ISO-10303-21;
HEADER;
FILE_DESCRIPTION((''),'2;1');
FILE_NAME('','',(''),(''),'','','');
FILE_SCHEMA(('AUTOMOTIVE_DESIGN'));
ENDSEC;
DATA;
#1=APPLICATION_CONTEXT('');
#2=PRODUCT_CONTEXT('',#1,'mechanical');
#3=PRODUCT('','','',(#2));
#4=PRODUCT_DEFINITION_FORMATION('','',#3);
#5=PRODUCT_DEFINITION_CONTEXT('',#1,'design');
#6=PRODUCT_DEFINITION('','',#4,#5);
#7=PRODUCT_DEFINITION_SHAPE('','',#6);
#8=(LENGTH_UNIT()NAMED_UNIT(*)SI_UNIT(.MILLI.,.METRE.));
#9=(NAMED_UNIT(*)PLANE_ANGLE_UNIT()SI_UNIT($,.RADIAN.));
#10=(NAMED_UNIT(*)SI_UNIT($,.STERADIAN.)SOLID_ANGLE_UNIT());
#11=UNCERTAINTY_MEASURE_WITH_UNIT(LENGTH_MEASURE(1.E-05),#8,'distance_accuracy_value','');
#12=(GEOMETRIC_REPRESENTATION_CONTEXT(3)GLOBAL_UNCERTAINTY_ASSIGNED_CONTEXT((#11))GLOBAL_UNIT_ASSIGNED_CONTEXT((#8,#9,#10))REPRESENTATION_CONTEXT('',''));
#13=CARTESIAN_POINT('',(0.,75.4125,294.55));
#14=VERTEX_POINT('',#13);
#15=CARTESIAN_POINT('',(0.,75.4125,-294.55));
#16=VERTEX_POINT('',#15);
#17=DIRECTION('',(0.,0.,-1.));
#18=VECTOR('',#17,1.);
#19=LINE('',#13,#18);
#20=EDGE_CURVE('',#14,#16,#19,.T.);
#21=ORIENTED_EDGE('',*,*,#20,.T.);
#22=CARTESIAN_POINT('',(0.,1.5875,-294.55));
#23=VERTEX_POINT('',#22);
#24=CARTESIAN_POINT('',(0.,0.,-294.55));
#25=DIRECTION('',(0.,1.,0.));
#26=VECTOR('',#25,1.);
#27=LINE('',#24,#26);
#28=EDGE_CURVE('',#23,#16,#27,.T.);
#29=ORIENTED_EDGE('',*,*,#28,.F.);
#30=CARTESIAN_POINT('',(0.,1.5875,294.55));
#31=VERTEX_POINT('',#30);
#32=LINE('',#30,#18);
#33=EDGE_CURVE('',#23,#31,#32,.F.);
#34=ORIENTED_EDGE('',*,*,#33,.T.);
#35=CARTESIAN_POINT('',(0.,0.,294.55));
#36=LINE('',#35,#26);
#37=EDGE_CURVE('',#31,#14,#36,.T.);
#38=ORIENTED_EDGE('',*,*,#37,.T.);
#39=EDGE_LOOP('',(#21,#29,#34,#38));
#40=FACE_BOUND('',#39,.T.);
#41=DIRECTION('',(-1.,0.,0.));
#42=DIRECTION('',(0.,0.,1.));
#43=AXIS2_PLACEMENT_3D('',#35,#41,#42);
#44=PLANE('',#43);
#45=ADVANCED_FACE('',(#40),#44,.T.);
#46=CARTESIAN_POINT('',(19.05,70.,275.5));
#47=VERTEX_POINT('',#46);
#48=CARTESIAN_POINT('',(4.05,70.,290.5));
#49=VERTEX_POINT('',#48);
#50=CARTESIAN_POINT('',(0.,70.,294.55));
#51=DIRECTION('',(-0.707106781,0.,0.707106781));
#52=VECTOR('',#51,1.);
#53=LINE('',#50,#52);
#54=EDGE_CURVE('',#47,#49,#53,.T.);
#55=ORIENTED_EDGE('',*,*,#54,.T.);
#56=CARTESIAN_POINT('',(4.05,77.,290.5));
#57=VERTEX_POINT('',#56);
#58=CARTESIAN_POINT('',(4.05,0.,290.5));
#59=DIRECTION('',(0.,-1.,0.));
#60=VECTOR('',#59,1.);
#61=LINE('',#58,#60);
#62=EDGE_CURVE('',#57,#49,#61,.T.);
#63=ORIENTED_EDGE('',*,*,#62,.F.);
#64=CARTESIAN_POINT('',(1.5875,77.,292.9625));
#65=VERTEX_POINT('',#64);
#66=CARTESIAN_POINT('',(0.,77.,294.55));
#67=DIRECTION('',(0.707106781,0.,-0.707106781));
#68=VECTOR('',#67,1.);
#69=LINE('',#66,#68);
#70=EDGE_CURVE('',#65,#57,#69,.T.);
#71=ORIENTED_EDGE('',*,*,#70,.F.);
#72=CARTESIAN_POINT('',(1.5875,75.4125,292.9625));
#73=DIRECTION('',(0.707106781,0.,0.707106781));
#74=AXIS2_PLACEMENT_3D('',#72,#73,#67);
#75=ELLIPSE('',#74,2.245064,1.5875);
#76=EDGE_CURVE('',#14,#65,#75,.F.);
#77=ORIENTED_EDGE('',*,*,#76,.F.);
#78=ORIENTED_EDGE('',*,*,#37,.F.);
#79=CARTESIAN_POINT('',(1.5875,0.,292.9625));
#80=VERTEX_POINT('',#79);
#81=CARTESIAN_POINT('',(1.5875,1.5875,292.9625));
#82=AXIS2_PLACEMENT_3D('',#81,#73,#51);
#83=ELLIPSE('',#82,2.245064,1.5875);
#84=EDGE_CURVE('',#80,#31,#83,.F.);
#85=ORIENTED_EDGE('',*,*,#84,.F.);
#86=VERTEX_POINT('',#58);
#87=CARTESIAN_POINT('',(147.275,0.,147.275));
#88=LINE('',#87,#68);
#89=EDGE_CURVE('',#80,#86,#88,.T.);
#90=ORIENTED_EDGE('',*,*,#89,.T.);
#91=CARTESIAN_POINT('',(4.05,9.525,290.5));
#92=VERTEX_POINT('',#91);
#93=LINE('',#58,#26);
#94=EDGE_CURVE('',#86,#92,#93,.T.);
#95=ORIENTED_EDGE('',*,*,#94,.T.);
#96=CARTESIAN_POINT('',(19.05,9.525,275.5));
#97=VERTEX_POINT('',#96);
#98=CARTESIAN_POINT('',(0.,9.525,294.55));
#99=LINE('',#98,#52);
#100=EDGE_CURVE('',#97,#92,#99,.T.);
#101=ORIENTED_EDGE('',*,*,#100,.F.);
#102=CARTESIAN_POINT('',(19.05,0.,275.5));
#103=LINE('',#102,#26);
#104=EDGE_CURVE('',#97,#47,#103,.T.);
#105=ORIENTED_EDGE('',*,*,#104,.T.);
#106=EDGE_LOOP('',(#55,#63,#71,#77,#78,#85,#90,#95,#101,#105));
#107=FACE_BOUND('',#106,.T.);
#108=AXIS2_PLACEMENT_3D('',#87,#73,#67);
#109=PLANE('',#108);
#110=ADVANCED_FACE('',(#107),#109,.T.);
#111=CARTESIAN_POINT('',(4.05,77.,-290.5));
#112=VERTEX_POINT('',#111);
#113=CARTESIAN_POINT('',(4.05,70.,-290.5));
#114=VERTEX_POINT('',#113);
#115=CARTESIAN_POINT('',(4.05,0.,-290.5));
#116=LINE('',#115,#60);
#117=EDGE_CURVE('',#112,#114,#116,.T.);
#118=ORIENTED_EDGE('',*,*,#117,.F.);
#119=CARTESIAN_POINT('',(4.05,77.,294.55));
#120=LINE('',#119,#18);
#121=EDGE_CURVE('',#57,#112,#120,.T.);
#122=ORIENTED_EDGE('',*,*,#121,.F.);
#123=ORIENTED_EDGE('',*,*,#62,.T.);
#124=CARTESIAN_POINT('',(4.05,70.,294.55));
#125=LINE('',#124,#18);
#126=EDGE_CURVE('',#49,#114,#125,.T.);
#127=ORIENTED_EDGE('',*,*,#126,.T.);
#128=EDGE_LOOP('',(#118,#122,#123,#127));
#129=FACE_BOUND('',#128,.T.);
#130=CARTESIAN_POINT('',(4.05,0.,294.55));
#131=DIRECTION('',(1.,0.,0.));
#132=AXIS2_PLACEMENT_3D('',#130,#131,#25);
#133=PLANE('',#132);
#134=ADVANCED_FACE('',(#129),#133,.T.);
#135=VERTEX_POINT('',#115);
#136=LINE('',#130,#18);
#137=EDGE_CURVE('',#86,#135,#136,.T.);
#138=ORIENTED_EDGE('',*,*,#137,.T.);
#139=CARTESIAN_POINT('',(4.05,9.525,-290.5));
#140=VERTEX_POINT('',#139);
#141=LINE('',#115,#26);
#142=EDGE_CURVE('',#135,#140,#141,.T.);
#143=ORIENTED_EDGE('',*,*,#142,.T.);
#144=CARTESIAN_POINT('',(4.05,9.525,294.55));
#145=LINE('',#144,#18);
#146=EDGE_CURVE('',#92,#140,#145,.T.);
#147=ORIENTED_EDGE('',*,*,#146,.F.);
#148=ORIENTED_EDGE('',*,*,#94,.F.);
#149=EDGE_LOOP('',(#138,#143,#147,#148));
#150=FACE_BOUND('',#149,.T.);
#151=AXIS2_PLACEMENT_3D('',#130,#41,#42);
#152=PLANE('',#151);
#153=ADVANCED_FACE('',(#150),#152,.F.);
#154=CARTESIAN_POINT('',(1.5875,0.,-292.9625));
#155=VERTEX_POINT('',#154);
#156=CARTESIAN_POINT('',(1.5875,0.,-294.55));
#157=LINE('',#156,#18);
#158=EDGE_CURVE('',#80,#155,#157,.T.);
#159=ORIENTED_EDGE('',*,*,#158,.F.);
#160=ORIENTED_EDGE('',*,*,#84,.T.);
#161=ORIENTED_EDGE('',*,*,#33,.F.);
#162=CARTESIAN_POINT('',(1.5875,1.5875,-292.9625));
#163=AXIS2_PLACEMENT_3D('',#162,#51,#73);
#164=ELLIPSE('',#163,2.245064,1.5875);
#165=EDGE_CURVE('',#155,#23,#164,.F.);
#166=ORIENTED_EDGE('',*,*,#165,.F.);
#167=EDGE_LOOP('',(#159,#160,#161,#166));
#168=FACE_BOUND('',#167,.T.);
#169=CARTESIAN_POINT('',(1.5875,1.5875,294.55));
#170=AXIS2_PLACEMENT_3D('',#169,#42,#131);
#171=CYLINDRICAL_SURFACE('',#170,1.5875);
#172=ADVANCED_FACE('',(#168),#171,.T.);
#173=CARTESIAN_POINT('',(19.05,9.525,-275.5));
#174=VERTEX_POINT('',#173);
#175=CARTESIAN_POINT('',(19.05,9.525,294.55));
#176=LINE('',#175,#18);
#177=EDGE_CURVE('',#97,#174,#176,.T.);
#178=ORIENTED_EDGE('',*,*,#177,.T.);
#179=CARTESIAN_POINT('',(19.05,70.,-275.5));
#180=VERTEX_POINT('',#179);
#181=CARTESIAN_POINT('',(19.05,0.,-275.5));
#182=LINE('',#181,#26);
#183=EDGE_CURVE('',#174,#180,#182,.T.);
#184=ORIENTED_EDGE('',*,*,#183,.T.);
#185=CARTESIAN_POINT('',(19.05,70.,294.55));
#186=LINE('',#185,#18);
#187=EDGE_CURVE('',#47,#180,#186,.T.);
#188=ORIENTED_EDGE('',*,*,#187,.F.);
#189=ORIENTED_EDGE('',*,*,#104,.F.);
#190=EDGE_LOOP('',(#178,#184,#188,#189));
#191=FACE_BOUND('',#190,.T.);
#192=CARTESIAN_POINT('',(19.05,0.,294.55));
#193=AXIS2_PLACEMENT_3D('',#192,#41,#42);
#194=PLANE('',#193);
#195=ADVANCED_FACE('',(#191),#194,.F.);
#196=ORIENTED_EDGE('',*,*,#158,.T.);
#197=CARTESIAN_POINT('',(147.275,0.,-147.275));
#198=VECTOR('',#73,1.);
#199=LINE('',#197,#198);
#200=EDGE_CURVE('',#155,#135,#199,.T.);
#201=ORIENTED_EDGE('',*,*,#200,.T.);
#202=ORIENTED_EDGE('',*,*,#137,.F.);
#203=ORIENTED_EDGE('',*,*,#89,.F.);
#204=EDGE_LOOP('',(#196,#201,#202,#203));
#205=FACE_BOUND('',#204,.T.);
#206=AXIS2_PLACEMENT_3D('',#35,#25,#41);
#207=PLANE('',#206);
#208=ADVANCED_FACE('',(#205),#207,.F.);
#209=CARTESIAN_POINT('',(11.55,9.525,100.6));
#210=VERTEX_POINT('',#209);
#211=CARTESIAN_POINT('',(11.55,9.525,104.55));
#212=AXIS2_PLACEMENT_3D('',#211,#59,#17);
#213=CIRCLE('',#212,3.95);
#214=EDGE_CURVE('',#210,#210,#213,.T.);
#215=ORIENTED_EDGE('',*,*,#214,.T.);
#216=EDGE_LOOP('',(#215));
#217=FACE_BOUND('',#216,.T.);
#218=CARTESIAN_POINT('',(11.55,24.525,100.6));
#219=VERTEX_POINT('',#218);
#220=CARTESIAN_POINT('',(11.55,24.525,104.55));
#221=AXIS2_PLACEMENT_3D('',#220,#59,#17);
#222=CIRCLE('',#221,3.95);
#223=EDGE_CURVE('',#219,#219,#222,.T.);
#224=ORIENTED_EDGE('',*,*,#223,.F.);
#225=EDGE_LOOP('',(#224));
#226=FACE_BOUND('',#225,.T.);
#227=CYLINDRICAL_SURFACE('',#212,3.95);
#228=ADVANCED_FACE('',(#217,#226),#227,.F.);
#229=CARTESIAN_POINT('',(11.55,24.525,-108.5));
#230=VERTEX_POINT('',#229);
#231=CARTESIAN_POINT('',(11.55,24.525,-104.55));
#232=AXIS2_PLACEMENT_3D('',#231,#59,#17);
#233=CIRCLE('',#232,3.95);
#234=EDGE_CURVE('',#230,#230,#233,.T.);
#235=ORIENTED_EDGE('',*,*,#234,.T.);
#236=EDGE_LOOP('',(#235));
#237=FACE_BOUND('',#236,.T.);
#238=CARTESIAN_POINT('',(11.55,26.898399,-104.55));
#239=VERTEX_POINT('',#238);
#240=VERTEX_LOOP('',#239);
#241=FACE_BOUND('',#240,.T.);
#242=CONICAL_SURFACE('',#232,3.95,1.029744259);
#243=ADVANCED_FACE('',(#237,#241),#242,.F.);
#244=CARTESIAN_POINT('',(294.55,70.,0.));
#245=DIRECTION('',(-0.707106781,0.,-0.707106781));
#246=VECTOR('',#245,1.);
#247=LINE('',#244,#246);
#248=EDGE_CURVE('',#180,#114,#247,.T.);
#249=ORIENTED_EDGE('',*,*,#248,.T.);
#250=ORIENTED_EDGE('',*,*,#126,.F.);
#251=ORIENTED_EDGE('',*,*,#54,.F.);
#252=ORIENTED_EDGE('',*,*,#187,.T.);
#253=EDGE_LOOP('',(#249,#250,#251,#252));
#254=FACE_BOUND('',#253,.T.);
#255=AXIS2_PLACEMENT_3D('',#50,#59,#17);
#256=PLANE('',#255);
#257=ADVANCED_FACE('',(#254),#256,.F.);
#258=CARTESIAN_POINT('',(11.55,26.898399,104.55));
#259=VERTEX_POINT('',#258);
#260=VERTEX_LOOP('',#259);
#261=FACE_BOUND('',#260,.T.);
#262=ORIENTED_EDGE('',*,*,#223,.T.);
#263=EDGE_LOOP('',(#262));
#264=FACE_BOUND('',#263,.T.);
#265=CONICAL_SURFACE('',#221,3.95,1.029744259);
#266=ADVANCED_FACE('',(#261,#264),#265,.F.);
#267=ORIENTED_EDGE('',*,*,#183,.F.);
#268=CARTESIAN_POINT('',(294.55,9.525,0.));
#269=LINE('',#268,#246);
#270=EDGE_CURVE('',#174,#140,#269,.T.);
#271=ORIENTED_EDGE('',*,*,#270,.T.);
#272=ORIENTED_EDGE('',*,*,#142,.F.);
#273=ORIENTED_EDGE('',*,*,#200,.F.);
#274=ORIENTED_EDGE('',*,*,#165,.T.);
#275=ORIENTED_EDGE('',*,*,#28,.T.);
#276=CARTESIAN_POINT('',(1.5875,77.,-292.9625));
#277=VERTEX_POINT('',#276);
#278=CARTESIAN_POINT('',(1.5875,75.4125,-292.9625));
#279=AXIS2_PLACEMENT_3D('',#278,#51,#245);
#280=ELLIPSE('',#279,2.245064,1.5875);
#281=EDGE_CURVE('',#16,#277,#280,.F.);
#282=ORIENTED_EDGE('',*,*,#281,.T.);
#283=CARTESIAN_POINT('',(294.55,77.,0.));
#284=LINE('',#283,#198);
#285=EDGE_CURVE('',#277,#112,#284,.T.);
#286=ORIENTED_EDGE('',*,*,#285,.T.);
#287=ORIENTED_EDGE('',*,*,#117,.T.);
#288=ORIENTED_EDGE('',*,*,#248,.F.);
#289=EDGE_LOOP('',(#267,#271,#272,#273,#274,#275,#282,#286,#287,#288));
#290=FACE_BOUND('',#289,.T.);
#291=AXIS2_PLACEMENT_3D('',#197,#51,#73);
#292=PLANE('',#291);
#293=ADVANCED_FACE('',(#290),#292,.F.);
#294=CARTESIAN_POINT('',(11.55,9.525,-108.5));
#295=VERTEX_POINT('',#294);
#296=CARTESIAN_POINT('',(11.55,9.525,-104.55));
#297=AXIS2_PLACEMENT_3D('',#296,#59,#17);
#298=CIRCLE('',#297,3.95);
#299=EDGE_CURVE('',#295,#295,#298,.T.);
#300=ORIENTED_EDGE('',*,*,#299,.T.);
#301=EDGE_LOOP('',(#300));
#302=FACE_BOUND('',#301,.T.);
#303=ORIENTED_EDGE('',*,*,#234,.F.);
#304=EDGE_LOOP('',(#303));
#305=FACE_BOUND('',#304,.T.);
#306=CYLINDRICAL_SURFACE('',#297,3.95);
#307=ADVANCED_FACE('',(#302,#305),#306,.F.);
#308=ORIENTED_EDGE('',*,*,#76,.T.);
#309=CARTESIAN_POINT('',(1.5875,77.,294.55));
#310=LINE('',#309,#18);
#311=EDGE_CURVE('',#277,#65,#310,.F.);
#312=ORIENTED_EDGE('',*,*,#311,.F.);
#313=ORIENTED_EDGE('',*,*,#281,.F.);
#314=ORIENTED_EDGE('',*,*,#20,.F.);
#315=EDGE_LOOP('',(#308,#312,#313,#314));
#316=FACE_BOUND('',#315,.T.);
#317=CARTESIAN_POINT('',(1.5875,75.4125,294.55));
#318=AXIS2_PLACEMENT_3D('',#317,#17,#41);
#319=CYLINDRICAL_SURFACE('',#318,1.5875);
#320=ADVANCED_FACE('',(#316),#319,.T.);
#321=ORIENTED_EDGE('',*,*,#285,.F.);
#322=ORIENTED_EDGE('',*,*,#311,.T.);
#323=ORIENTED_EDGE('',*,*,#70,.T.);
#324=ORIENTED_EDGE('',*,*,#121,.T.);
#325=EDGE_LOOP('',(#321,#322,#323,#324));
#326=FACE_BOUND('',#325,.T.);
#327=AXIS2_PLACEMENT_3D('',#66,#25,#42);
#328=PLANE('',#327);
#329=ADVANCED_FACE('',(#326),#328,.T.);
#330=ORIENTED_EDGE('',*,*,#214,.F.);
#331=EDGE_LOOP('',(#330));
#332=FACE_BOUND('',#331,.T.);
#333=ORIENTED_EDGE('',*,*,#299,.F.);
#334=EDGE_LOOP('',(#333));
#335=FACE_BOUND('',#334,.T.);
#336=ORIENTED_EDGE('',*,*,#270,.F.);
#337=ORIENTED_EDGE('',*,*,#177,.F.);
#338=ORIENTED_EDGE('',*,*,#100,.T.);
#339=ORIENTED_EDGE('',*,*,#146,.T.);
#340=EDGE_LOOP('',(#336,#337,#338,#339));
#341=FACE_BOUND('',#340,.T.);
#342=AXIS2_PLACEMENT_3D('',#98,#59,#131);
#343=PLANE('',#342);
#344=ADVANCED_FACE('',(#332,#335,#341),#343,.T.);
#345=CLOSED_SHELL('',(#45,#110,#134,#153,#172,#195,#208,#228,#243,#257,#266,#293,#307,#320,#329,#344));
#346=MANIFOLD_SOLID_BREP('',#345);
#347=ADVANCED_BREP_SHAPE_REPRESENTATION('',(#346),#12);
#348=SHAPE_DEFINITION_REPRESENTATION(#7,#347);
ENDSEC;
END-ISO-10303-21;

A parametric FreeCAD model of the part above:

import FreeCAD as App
import Part
import Sketcher

V = App.Vector


def edges_at(feature, points):
    """Names of the edges that pass closest to the given points."""
    edges = feature.Shape.Edges
    near = lambda p: min(range(len(edges)), key=lambda i: edges[i].distToShape(Part.Vertex(*p))[0])
    return sorted({f"Edge{near(p) + 1}" for p in points})


def add_polygon(sketch, points):
    """Adds a closed chain of lines whose ends are joined by coincident constraints."""
    first, n = sketch.GeometryCount, len(points)
    for a, b in zip(points, points[1:] + points[:1]):
        sketch.addGeometry(Part.LineSegment(App.Vector(*a, 0), App.Vector(*b, 0)), False)
    for i in range(n):
        sketch.addConstraint(Sketcher.Constraint("Coincident", first + i, 2, first + (i + 1) % n, 1))

doc = App.newDocument("Part")
body = doc.addObject("PartDesign::Body", "Body")

sketch1 = doc.addObject("Sketcher::SketchObject", "Sketch")
body.addObject(sketch1)
sketch1.AttachmentSupport = (doc.XY_Plane, [""])
sketch1.MapMode = "FlatFace"
add_polygon(sketch1, [(0, 77), (0, 0), (4.05, 0), (4.05, 9.525), (19.05, 9.525), (19.05, 70), (4.05, 70), (4.05, 77)])
sketch1.addConstraint(Sketcher.Constraint("Vertical", 0))
sketch1.addConstraint(Sketcher.Constraint("Horizontal", 1))
sketch1.addConstraint(Sketcher.Constraint("Vertical", 2))
sketch1.addConstraint(Sketcher.Constraint("Horizontal", 3))
sketch1.addConstraint(Sketcher.Constraint("Vertical", 4))
sketch1.addConstraint(Sketcher.Constraint("Horizontal", 5))
sketch1.addConstraint(Sketcher.Constraint("Vertical", 6))
sketch1.addConstraint(Sketcher.Constraint("Horizontal", 7))
sketch1.addConstraint(Sketcher.Constraint("Coincident", 0, 2, -1, 1))
sketch1.addConstraint(Sketcher.Constraint("Vertical", 2, 2, 5, 2))
sketch1.addConstraint(Sketcher.Constraint("DistanceX", 3, 1, 3, 2, 15.0))
sketch1.addConstraint(Sketcher.Constraint("DistanceY", 0, 2, 0, 1, 77.0))
sketch1.addConstraint(Sketcher.Constraint("DistanceY", 6, 1, 6, 2, 7.0))
sketch1.addConstraint(Sketcher.Constraint("DistanceX", 1, 1, 1, 2, 4.05))
sketch1.addConstraint(Sketcher.Constraint("DistanceY", 2, 1, 2, 2, 9.525))
pad1 = doc.addObject("PartDesign::Pad", "Pad")
body.addObject(pad1)
pad1.Profile = sketch1
pad1.Length = 589.1
pad1.Midplane = True
doc.recompute()

fillet = doc.addObject("PartDesign::Fillet", "Fillet")
body.addObject(fillet)
fillet.Base = (pad1, edges_at(pad1, [(0, 0, 0), (0, 77, 0)]))
fillet.Radius = 1.5875

sketch2 = doc.addObject("Sketcher::SketchObject", "Sketch001")
body.addObject(sketch2)
sketch2.AttachmentSupport = (doc.XZ_Plane, [""])
sketch2.MapMode = "FlatFace"
sketch2.AttachmentOffset = App.Placement(V(0, 0, -77), App.Rotation())
add_polygon(sketch2, [(0, -294.55), (19.05, -275.5), (19.05, -294.55)])
add_polygon(sketch2, [(19.05, 294.55), (19.05, 275.5), (0, 294.55)])
sketch2.addConstraint(Sketcher.Constraint("Vertical", 1))
sketch2.addConstraint(Sketcher.Constraint("Horizontal", 2))
sketch2.addConstraint(Sketcher.Constraint("Vertical", 3))
sketch2.addConstraint(Sketcher.Constraint("Horizontal", 5))
sketch2.addConstraint(Sketcher.Constraint("Symmetric", 2, 2, 4, 2, -1, 1))
sketch2.addConstraint(Sketcher.Constraint("Symmetric", 0, 2, 3, 2, -1))
sketch2.addConstraint(Sketcher.Constraint("PointOnObject", 2, 2, -2))
sketch2.addConstraint(Sketcher.Constraint("Perpendicular", 0, 4))
sketch2.addConstraint(Sketcher.Constraint("DistanceY", 0, 2, 3, 2, 551.0))
sketch2.addConstraint(Sketcher.Constraint("DistanceX", 2, 2, 2, 1, 19.05))
pocket1 = doc.addObject("PartDesign::Pocket", "Pocket")
body.addObject(pocket1)
pocket1.Profile = sketch2
pocket1.Type = "ThroughAll"
pocket1.Midplane = True

sketch3 = doc.addObject("Sketcher::SketchObject", "Sketch002")
body.addObject(sketch3)
sketch3.AttachmentSupport = (doc.XZ_Plane, [""])
sketch3.MapMode = "FlatFace"
sketch3.AttachmentOffset = App.Placement(V(0, 0, -9.525), App.Rotation())
sketch3.addGeometry(Part.Circle(V(11.55, -104.55, 0), V(0, 0, 1), 3.95), False)
sketch3.addGeometry(Part.Circle(V(11.55, 104.55, 0), V(0, 0, 1), 3.95), False)
sketch3.addConstraint(Sketcher.Constraint("Equal", 0, 1))
sketch3.addConstraint(Sketcher.Constraint("Symmetric", 0, 3, 1, 3, -1))
sketch3.addConstraint(Sketcher.Constraint("Diameter", 0, 7.9))
sketch3.addConstraint(Sketcher.Constraint("DistanceY", 0, 3, 1, 3, 209.1))
sketch3.addConstraint(Sketcher.Constraint("DistanceX", -1, 1, 0, 3, 11.55))
doc.recompute()
hole = doc.addObject("PartDesign::Hole", "Hole")
body.addObject(hole)
hole.Profile = sketch3
hole.ThreadType = "None"
hole.Diameter = 7.9
hole.DepthType = "Dimension"
hole.Depth = 15
hole.DrillPoint = "Angled"
hole.DrillPointAngle = 118

doc.recompute()
